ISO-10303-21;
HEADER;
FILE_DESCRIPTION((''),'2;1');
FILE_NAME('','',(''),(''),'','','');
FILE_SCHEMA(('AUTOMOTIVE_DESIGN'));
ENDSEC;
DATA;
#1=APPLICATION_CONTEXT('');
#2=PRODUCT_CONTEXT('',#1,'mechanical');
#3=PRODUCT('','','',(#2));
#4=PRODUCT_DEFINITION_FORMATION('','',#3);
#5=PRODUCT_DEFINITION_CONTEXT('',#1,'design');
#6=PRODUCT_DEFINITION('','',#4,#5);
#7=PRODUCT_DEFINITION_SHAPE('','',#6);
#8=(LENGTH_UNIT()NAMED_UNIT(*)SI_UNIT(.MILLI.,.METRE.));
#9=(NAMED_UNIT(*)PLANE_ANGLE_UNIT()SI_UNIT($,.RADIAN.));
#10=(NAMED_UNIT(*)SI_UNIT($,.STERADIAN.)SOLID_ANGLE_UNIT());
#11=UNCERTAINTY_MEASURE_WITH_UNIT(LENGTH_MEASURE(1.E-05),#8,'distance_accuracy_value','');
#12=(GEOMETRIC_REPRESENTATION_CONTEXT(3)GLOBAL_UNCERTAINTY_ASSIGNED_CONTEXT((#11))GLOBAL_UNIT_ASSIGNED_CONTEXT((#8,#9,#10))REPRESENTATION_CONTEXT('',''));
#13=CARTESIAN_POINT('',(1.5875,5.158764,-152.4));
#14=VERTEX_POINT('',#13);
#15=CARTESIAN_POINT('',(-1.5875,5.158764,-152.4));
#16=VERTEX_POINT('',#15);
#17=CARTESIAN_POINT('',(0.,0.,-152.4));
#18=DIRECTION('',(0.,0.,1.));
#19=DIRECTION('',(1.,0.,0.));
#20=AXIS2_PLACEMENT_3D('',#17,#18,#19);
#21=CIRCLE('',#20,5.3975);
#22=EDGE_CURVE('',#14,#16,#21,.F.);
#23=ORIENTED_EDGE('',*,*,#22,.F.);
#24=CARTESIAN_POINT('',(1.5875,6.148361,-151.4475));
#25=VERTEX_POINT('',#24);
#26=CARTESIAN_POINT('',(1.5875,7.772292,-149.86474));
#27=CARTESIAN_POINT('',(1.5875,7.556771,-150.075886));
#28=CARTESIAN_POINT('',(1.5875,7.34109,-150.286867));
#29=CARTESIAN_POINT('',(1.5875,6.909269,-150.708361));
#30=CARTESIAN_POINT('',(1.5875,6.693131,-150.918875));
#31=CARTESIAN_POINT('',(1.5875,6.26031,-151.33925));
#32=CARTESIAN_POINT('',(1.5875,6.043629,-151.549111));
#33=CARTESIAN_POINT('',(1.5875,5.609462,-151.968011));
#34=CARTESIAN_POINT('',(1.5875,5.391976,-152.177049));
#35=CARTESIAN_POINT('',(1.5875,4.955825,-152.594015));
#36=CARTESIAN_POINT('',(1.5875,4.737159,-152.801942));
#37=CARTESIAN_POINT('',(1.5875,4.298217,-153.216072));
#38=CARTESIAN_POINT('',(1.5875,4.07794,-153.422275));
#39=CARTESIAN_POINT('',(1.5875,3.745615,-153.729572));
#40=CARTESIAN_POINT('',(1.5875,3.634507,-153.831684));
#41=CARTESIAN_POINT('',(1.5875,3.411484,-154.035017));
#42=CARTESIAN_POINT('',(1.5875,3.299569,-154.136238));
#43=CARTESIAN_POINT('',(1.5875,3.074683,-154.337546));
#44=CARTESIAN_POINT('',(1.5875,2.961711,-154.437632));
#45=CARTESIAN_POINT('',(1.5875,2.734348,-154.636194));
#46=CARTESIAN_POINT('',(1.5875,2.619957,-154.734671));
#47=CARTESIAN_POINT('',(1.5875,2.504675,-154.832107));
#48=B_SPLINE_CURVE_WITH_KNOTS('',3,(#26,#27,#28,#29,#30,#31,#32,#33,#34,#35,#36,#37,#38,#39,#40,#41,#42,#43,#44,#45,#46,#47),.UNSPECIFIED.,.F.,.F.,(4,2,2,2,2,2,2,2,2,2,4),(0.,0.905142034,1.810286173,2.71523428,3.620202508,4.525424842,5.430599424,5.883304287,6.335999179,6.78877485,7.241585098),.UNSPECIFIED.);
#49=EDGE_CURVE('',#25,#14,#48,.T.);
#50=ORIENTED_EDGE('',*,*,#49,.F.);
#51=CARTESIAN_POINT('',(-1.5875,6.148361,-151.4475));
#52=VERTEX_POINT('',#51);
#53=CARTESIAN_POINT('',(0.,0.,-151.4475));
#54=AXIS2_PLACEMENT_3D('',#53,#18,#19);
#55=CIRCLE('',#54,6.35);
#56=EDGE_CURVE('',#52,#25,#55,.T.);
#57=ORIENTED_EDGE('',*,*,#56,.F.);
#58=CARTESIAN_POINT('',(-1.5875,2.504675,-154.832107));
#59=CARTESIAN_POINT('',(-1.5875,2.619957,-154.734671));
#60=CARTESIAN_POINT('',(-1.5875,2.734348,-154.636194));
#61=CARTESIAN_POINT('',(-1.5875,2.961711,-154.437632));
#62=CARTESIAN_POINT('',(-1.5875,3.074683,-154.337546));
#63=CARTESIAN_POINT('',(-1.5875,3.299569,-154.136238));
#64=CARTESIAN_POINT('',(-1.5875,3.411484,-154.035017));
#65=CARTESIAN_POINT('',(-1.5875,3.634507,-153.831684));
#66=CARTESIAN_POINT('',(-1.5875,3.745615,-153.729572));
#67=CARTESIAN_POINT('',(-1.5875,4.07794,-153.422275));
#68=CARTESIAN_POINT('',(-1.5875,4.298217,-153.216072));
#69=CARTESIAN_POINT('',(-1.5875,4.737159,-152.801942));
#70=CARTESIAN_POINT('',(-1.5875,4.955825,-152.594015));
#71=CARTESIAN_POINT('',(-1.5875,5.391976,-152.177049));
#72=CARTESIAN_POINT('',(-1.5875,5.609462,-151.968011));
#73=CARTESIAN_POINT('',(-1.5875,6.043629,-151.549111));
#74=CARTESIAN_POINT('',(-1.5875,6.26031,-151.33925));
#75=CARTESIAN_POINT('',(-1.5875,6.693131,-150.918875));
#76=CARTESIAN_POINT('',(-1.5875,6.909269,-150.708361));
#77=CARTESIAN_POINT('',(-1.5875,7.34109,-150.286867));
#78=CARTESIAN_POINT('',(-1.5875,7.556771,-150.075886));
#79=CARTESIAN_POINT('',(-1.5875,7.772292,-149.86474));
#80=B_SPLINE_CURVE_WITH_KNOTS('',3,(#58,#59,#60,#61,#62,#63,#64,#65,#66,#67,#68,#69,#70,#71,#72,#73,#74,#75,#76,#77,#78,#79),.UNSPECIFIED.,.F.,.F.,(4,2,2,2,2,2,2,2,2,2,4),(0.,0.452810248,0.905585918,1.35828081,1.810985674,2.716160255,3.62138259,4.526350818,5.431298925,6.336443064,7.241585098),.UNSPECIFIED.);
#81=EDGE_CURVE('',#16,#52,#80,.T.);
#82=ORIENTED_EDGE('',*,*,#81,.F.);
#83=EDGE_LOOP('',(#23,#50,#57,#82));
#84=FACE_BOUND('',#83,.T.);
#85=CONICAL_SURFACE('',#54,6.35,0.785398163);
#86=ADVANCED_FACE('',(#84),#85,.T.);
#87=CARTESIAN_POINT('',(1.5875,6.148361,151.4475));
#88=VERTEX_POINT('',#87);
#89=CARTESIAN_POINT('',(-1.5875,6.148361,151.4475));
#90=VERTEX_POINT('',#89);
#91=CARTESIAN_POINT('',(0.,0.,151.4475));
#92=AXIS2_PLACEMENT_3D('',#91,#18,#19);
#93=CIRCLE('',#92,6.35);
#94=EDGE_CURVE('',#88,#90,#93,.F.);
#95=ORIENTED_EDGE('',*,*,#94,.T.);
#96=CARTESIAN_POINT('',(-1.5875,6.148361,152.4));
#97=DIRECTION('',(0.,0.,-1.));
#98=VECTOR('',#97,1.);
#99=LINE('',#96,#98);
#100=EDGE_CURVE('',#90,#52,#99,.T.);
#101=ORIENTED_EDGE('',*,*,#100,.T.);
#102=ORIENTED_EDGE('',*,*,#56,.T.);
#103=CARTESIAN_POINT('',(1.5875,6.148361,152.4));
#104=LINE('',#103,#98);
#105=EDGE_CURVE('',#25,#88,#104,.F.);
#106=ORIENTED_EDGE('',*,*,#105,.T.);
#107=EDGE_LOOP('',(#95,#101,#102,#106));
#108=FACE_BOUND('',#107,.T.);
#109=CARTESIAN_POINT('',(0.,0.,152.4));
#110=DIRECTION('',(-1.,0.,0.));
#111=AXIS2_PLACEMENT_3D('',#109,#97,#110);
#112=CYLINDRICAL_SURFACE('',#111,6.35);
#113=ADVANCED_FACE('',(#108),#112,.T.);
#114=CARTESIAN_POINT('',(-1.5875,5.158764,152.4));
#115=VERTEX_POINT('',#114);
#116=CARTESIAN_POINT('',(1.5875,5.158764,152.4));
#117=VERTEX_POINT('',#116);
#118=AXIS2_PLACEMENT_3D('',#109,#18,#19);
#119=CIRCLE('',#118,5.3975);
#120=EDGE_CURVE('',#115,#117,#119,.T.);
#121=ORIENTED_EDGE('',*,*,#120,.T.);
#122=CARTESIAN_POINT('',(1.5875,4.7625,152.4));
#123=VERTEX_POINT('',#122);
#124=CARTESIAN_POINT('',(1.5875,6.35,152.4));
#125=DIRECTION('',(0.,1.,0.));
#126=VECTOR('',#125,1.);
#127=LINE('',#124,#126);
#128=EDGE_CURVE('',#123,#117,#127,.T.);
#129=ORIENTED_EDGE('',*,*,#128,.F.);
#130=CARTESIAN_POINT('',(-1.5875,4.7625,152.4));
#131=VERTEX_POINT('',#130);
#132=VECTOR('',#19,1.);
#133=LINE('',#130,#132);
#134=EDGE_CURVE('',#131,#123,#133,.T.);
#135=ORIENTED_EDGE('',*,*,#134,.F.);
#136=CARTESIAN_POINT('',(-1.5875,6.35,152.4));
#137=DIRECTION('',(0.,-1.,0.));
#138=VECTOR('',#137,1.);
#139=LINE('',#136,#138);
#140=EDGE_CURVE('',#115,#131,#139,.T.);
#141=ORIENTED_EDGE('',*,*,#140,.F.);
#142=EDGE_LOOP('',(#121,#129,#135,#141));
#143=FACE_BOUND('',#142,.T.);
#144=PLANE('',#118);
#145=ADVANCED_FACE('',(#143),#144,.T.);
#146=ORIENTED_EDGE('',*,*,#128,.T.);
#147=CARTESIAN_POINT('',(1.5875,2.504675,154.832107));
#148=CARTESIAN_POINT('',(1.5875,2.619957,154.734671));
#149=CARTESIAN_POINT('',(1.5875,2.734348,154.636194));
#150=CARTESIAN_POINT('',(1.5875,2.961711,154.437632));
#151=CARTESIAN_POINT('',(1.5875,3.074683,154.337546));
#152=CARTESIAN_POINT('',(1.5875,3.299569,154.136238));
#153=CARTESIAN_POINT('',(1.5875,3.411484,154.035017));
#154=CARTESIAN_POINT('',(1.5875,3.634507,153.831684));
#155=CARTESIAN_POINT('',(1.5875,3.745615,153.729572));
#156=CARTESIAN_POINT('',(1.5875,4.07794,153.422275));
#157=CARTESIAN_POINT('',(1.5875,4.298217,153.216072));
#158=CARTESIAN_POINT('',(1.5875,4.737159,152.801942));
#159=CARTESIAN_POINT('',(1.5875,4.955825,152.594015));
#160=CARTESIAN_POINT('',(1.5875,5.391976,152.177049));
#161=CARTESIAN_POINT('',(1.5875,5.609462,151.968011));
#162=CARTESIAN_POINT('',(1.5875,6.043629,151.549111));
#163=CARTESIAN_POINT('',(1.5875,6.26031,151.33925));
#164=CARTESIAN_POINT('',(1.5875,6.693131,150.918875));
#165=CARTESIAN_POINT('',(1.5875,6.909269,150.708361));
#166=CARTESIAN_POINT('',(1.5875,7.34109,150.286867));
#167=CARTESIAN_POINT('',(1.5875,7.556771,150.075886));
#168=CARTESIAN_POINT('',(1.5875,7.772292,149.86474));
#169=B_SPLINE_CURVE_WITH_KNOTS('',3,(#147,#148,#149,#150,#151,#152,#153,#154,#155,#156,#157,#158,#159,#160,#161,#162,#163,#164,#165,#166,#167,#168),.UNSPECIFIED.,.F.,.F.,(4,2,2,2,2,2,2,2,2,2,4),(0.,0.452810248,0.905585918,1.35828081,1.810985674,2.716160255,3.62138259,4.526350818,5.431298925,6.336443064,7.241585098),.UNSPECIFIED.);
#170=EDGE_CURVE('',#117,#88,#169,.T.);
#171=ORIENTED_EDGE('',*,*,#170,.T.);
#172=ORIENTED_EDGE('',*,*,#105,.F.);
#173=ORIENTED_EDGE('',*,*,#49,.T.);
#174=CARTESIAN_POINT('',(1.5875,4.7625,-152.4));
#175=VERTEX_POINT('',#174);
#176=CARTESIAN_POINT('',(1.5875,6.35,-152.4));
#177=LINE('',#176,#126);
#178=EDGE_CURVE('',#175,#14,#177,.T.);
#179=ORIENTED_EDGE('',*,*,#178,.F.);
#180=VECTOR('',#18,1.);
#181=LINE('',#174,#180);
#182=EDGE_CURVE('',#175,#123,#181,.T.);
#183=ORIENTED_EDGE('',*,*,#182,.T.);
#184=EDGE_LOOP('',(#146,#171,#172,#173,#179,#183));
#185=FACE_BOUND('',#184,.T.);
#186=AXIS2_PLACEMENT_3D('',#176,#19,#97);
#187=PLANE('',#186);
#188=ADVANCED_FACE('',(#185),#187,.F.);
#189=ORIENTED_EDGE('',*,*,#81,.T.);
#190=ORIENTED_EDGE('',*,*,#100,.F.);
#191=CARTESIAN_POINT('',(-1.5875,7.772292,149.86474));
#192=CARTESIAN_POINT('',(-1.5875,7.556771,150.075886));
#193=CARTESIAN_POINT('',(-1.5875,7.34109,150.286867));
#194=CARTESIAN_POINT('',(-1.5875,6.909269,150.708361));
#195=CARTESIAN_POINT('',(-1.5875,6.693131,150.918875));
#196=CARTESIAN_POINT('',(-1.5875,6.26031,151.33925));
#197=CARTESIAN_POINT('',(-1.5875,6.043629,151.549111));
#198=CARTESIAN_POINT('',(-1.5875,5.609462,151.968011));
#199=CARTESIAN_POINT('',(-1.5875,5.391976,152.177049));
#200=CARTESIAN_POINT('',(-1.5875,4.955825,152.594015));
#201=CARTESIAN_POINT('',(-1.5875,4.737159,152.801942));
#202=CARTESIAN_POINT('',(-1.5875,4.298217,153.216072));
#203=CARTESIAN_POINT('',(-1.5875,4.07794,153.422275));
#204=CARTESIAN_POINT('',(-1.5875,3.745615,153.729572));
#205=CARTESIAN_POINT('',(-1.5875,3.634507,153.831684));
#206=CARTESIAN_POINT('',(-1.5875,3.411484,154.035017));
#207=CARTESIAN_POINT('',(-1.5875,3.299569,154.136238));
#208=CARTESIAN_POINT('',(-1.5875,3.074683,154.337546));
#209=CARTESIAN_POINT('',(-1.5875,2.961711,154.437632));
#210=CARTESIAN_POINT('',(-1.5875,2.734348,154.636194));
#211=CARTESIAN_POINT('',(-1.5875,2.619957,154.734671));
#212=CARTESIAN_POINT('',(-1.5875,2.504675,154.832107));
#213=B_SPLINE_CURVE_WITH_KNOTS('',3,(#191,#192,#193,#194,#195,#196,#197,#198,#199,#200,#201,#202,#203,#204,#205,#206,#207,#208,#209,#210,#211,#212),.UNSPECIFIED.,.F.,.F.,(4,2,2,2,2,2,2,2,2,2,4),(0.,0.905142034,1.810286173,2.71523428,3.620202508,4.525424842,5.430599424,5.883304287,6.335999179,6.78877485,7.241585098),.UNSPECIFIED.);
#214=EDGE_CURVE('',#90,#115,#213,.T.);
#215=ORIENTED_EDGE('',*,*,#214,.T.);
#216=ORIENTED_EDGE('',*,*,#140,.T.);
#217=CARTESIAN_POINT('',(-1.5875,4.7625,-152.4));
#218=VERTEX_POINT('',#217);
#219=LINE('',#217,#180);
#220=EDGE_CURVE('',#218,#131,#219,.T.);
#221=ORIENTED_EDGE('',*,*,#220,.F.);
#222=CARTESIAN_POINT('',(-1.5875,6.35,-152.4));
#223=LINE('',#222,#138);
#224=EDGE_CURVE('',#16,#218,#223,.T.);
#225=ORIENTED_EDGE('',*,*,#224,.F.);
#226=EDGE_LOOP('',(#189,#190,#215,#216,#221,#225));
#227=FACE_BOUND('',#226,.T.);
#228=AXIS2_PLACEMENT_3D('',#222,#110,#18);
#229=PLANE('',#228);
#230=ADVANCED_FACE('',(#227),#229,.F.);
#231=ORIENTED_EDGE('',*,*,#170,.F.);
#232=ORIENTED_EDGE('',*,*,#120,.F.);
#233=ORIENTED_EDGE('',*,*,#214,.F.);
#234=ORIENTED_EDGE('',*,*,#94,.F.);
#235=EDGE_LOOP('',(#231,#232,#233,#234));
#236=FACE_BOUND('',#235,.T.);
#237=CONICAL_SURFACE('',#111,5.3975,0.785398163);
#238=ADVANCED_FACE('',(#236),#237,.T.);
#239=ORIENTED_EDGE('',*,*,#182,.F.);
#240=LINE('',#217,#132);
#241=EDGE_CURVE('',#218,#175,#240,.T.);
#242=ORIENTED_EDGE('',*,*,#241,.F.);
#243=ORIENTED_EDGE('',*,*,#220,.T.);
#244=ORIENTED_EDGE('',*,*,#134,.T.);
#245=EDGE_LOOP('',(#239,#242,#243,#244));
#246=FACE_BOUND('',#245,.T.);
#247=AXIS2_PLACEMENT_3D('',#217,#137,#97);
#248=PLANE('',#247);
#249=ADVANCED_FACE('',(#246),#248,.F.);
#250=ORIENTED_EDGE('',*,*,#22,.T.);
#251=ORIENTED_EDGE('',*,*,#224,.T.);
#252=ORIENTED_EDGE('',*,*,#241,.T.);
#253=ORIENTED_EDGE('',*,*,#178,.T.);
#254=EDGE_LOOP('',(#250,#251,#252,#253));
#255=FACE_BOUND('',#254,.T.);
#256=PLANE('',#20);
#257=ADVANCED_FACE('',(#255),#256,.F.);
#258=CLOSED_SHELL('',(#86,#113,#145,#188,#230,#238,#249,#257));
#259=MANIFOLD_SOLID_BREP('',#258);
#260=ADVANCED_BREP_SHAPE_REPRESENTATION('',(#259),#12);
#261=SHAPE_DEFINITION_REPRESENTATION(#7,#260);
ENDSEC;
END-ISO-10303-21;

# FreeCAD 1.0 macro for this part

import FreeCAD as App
import Part
import Sketcher
from FreeCAD import Vector
Q = App.Units.Quantity


def edges_at(feature, points):
    """Names of the edges that pass closest to the given points."""
    edges = feature.Shape.Edges
    near = lambda p: min(range(len(edges)), key=lambda i: edges[i].distToShape(Part.Vertex(*p))[0])
    return sorted({f"Edge{near(p) + 1}" for p in points})


def add_polygon(sketch, points):
    """Adds a closed chain of lines whose ends are joined by coincident constraints."""
    first, n = sketch.GeometryCount, len(points)
    for a, b in zip(points, points[1:] + points[:1]):
        sketch.addGeometry(Part.LineSegment(App.Vector(*a, 0), App.Vector(*b, 0)), False)
    for i in range(n):
        sketch.addConstraint(Sketcher.Constraint("Coincident", first + i, 2, first + (i + 1) % n, 1))

doc = App.newDocument("Part")
body = doc.addObject("PartDesign::Body", "Body")

# Sketch on XY plane
sketch1 = body.newObject("Sketcher::SketchObject", "Sketch")
sketch1.AttachmentSupport = (doc.getObject("XY_Plane"), [""])
sketch1.MapMode = "FlatFace"
sketch1.addGeometry(Part.Circle(Vector(0, 0, 0), Vector(0, 0, 1), 6), False)
sketch1.addConstraint(Sketcher.Constraint("Coincident", 0, 3, -1, 1))
sketch1.addConstraint(Sketcher.Constraint("Diameter", 0, Q("0.5 in")))
pad1 = body.newObject("PartDesign::Pad", "Pad")
pad1.Profile = sketch1
pad1.Length = Q("12 in")
pad1.Midplane = True
doc.recompute()

chamfer = body.newObject("PartDesign::Chamfer", "Chamfer")
chamfer.Base = (pad1, edges_at(pad1, [(-6.35, 0, -152.4), (-6.35, 0, 152.4)]))
chamfer.Size = Q("0.0375 in")

# Sketch on XY plane
sketch2 = body.newObject("Sketcher::SketchObject", "Sketch001")
sketch2.AttachmentSupport = (doc.getObject("XY_Plane"), [""])
sketch2.MapMode = "FlatFace"
add_polygon(sketch2, [(-1.6, 6.3), (-1.6, 4.8), (1.6, 4.8), (1.6, 6.3)])  # lines 0-3
sketch2.addConstraint(Sketcher.Constraint("Vertical", 0))
sketch2.addConstraint(Sketcher.Constraint("Horizontal", 1))
sketch2.addConstraint(Sketcher.Constraint("Vertical", 2))
sketch2.addConstraint(Sketcher.Constraint("Horizontal", 3))
sketch2.addConstraint(Sketcher.Constraint("DistanceX", 1, 1, 1, 2, Q("0.125 in")))
sketch2.addConstraint(Sketcher.Constraint("DistanceY", 0, 2, 0, 1, Q("0.0625 in")))
sketch2.addConstraint(Sketcher.Constraint("DistanceY", -1, 1, 2, 2, Q("0.25 in")))
sketch2.addConstraint(Sketcher.Constraint("DistanceX", 0, 2, -1, 1, Q("0.0625 in")))
pocket1 = body.newObject("PartDesign::Pocket", "Pocket")
pocket1.Profile = sketch2
pocket1.Type = "ThroughAll"
pocket1.Midplane = True

doc.recompute()
